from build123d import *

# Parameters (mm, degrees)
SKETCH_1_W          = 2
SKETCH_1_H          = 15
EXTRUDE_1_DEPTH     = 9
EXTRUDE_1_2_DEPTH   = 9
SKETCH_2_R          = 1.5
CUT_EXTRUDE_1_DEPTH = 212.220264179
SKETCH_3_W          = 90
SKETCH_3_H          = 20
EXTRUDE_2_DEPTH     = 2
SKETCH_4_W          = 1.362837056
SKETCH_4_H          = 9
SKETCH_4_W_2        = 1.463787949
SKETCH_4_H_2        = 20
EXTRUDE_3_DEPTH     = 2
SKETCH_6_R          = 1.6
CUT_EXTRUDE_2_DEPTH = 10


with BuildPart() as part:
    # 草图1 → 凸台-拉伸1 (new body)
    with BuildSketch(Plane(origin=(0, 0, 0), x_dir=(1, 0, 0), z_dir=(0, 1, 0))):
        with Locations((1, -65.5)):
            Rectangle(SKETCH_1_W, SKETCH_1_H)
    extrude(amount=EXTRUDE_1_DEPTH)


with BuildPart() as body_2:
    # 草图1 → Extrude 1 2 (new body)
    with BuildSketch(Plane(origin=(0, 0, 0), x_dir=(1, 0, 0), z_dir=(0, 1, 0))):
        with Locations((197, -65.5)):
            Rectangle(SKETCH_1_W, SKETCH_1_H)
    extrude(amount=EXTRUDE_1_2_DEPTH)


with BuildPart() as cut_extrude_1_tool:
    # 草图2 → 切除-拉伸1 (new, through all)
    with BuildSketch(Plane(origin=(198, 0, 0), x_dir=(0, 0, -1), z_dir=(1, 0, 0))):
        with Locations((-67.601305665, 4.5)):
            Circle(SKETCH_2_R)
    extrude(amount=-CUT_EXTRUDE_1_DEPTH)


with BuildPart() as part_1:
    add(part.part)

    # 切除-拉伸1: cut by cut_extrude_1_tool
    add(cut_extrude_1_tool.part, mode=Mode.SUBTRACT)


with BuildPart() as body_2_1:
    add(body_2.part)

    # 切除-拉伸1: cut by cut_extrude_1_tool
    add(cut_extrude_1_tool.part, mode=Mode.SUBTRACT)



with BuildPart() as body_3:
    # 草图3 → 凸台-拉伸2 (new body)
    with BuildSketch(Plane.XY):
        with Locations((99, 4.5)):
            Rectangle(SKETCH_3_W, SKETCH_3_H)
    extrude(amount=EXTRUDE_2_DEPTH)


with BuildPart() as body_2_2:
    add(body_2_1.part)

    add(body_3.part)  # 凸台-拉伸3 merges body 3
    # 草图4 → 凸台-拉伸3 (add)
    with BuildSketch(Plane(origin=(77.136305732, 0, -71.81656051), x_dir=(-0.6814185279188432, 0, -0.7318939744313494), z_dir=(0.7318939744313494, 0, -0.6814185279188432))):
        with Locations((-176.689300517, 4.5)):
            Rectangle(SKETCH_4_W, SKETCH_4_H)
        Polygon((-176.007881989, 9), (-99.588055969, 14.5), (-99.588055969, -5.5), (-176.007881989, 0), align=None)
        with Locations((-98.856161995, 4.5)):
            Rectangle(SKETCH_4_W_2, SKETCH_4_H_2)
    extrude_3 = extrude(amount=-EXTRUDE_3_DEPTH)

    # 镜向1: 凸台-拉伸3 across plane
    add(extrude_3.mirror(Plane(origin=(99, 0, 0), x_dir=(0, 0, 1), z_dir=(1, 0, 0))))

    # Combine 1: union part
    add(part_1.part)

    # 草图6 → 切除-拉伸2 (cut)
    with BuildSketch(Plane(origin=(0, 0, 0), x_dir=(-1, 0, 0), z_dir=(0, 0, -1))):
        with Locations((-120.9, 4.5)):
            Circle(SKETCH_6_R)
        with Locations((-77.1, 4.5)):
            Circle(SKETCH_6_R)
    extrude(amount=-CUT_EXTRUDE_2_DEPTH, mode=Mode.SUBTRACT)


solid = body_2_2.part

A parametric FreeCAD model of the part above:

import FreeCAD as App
import Part
import Sketcher

V = App.Vector

doc = App.newDocument("Part")
params = doc.addObject("Spreadsheet::Sheet", "Params")
for row, (alias, value) in enumerate([
    ("sketch1_width", "2 mm"),
    ("sketch1_height", "15 mm"),
    ("pad1_length", "9 mm"),
    ("sketch2_width", "2 mm"),
    ("sketch2_height", "15 mm"),
    ("pad2_length", "9 mm"),
    ("sketch3_diameter", "3 mm"),
    ("pad3_length", "212.220264 mm"),
    ("sketch4_width", "90 mm"),
    ("sketch4_height", "20 mm"),
    ("pad4_length", "2 mm"),
    ("sketch5_height", "9 mm"),
    ("sketch5_height2", "20 mm"),
    ("pad5_length", "2 mm"),
    ("sketch6_diameter", "3.2 mm"),
    ("pocket1_length", "10 mm"),
], start=1):
    params.set(f"A{row}", alias)
    params.set(f"B{row}", "=" + value)
    params.setAlias(f"B{row}", alias)

body = doc.addObject("PartDesign::Body", "Body")

sketch1 = body.newObject("Sketcher::SketchObject", "Sketch")
sketch1.AttachmentSupport = (doc.getObject("XZ_Plane"), [""])
sketch1.MapMode = "FlatFace"
sketch1.addGeometry([
    Part.LineSegment(V(0, 58, 0), V(0, 73, 0)),
    Part.LineSegment(V(0, 73, 0), V(2, 73, 0)),
    Part.LineSegment(V(2, 73, 0), V(2, 58, 0)),
    Part.LineSegment(V(2, 58, 0), V(0, 58, 0)),
], False)
sketch1.addConstraint([
    Sketcher.Constraint("Coincident", 0, 2, 1, 1),
    Sketcher.Constraint("Coincident", 1, 2, 2, 1),
    Sketcher.Constraint("Coincident", 2, 2, 3, 1),
    Sketcher.Constraint("Coincident", 3, 2, 0, 1),
    Sketcher.Constraint("Vertical", 0),
    Sketcher.Constraint("Horizontal", 1),
    Sketcher.Constraint("Vertical", 2),
    Sketcher.Constraint("Horizontal", 3),
    Sketcher.Constraint("PointOnObject", 0, 2, -2),
    Sketcher.Constraint("DistanceX", 1, 1, 1, 2, 2.0),
    Sketcher.Constraint("DistanceY", 0, 1, 0, 2, 15.0),
    Sketcher.Constraint("DistanceY", -1, 1, 0, 2, 73.0),
])
sketch1.setExpression("Constraints[9]", "Params.sketch1_width")
sketch1.setExpression("Constraints[10]", "Params.sketch1_height")
pad1 = body.newObject("PartDesign::Pad", "Pad")
pad1.Profile = sketch1
pad1.setExpression("Length", "Params.pad1_length")
pad1.Reversed = True
body2 = doc.addObject("PartDesign::Body", "Body001")

sketch2 = body2.newObject("Sketcher::SketchObject", "Sketch001")
sketch2.AttachmentSupport = (doc.getObject("XZ_Plane001"), [""])
sketch2.MapMode = "FlatFace"
sketch2.addGeometry([
    Part.LineSegment(V(196, 58, 0), V(196, 73, 0)),
    Part.LineSegment(V(196, 73, 0), V(198, 73, 0)),
    Part.LineSegment(V(198, 73, 0), V(198, 58, 0)),
    Part.LineSegment(V(198, 58, 0), V(196, 58, 0)),
], False)
sketch2.addConstraint([
    Sketcher.Constraint("Coincident", 0, 2, 1, 1),
    Sketcher.Constraint("Coincident", 1, 2, 2, 1),
    Sketcher.Constraint("Coincident", 2, 2, 3, 1),
    Sketcher.Constraint("Coincident", 3, 2, 0, 1),
    Sketcher.Constraint("Vertical", 0),
    Sketcher.Constraint("Horizontal", 1),
    Sketcher.Constraint("Vertical", 2),
    Sketcher.Constraint("Horizontal", 3),
    Sketcher.Constraint("DistanceX", 1, 1, 1, 2, 2.0),
    Sketcher.Constraint("DistanceY", 0, 1, 0, 2, 15.0),
    Sketcher.Constraint("DistanceX", -1, 1, 0, 2, 196.0),
    Sketcher.Constraint("DistanceY", -1, 1, 0, 2, 73.0),
])
sketch2.setExpression("Constraints[8]", "Params.sketch2_width")
sketch2.setExpression("Constraints[9]", "Params.sketch2_height")
pad2 = body2.newObject("PartDesign::Pad", "Pad001")
pad2.Profile = sketch2
pad2.setExpression("Length", "Params.pad2_length")
pad2.Reversed = True
body3 = doc.addObject("PartDesign::Body", "Body002")

sketch3 = body3.newObject("Sketcher::SketchObject", "Sketch002")
sketch3.AttachmentSupport = (doc.getObject("YZ_Plane002"), [""])
sketch3.MapMode = "FlatFace"
sketch3.AttachmentOffset = App.Placement(V(0, 0, 198), App.Rotation())
sketch3.addGeometry(Part.Circle(V(4.5, 67.6, 0), V(0, 0, 1), 1.5), False)
sketch3.addConstraint([
    Sketcher.Constraint("Diameter", 0, 3.0),
    Sketcher.Constraint("DistanceX", -1, 1, 0, 3, 4.5),
    Sketcher.Constraint("DistanceY", -1, 1, 0, 3, 67.601306),
])
sketch3.setExpression("Constraints[0]", "Params.sketch3_diameter")
pad3 = body3.newObject("PartDesign::Pad", "Pad002")
pad3.Profile = sketch3
pad3.setExpression("Length", "Params.pad3_length")
pad3.Reversed = True
doc.recompute()

body4 = doc.addObject("PartDesign::Body", "Body003")
body4.BaseFeature = body3
boolean = body.newObject("PartDesign::Boolean", "Boolean")
boolean.Type = "Cut"
boolean.addObjects([body4])
doc.recompute()

boolean2 = body2.newObject("PartDesign::Boolean", "Boolean001")
boolean2.Type = "Cut"
boolean2.addObjects([body3])
body5 = doc.addObject("PartDesign::Body", "Body004")

sketch4 = body5.newObject("Sketcher::SketchObject", "Sketch003")
sketch4.AttachmentSupport = (doc.getObject("XY_Plane004"), [""])
sketch4.MapMode = "FlatFace"
sketch4.addGeometry([
    Part.LineSegment(V(54, 14, 0), V(54, -6, 0)),
    Part.LineSegment(V(54, -6, 0), V(144, -6, 0)),
    Part.LineSegment(V(144, -6, 0), V(144, 14, 0)),
    Part.LineSegment(V(144, 14, 0), V(54, 14, 0)),
], False)
sketch4.addConstraint([
    Sketcher.Constraint("Coincident", 0, 2, 1, 1),
    Sketcher.Constraint("Coincident", 1, 2, 2, 1),
    Sketcher.Constraint("Coincident", 2, 2, 3, 1),
    Sketcher.Constraint("Coincident", 3, 2, 0, 1),
    Sketcher.Constraint("Vertical", 0),
    Sketcher.Constraint("Horizontal", 1),
    Sketcher.Constraint("Vertical", 2),
    Sketcher.Constraint("Horizontal", 3),
    Sketcher.Constraint("DistanceX", 1, 1, 1, 2, 90.0),
    Sketcher.Constraint("DistanceY", 0, 2, 0, 1, 20.0),
    Sketcher.Constraint("DistanceX", -1, 1, 0, 2, 54.0),
    Sketcher.Constraint("DistanceY", 0, 2, -1, 1, 5.5),
])
sketch4.setExpression("Constraints[8]", "Params.sketch4_width")
sketch4.setExpression("Constraints[9]", "Params.sketch4_height")
pad4 = body5.newObject("PartDesign::Pad", "Pad003")
pad4.Profile = sketch4
pad4.setExpression("Length", "Params.pad4_length")
body2.AllowCompound = True
doc.recompute()

boolean3 = body2.newObject("PartDesign::Boolean", "Boolean002")
boolean3.Type = "Fuse"
boolean3.addObjects([body5])

sketch5 = body2.newObject("Sketcher::SketchObject", "Sketch004")
sketch5.Placement = App.Placement(V(77.136306, 0, -71.816561), App.Rotation(V(-0.681418528, 0, -0.731893974), V(0, 0.999999999, 0), V(0.731893974, 0, -0.681418528), "ZXY"))
sketch5.addGeometry([
    Part.LineSegment(V(-177.4, 9, 0), V(-177.4, 0, 0)),
    Part.LineSegment(V(-177.4, 0, 0), V(-176, 0, 0)),
    Part.LineSegment(V(-176, 0, 0), V(-99.6, -5.5, 0)),
    Part.LineSegment(V(-99.6, -5.5, 0), V(-98.1, -5.5, 0)),
    Part.LineSegment(V(-98.1, -5.5, 0), V(-98.1, 14.5, 0)),
    Part.LineSegment(V(-98.1, 14.5, 0), V(-99.6, 14.5, 0)),
    Part.LineSegment(V(-99.6, 14.5, 0), V(-176, 9, 0)),
    Part.LineSegment(V(-176, 9, 0), V(-177.4, 9, 0)),
], False)
sketch5.addConstraint([
    Sketcher.Constraint("Coincident", 0, 2, 1, 1),
    Sketcher.Constraint("Coincident", 1, 2, 2, 1),
    Sketcher.Constraint("Coincident", 2, 2, 3, 1),
    Sketcher.Constraint("Coincident", 3, 2, 4, 1),
    Sketcher.Constraint("Coincident", 4, 2, 5, 1),
    Sketcher.Constraint("Coincident", 5, 2, 6, 1),
    Sketcher.Constraint("Coincident", 6, 2, 7, 1),
    Sketcher.Constraint("Coincident", 7, 2, 0, 1),
    Sketcher.Constraint("Vertical", 0),
    Sketcher.Constraint("Horizontal", 1),
    Sketcher.Constraint("Horizontal", 3),
    Sketcher.Constraint("Vertical", 4),
    Sketcher.Constraint("Horizontal", 5),
    Sketcher.Constraint("Horizontal", 7),
    Sketcher.Constraint("PointOnObject", 0, 2, -1),
    Sketcher.Constraint("Vertical", 2, 2, 5, 2),
    Sketcher.Constraint("Vertical", 1, 2, 6, 2),
    Sketcher.Constraint("Equal", 2, 6),
    Sketcher.Constraint("DistanceY", 0, 2, 0, 1, 9.0),
    Sketcher.Constraint("DistanceY", 4, 1, 4, 2, 20.0),
    Sketcher.Constraint("Distance", 2, 76.61749),
    Sketcher.Constraint("DistanceX", 1, 1, 1, 2, 1.362837),
    Sketcher.Constraint("DistanceX", 3, 1, 3, 2, 1.463788),
    Sketcher.Constraint("DistanceX", 0, 2, -1, 1, 177.370719),
])
sketch5.setExpression("Constraints[18]", "Params.sketch5_height")
sketch5.setExpression("Constraints[19]", "Params.sketch5_height2")
pad5 = body2.newObject("PartDesign::Pad", "Pad004")
pad5.Profile = sketch5
pad5.setExpression("Length", "Params.pad5_length")
pad5.Reversed = True
doc.recompute()

datumplane = body2.newObject("PartDesign::Plane", "DatumPlane")
datumplane.AttachmentSupport = (doc.getObject("YZ_Plane001"), [""])
datumplane.MapMode = "FlatFace"
datumplane.AttachmentOffset = App.Placement(V(0, 0, 99), App.Rotation())
mirrored = body2.newObject("PartDesign::Mirrored", "Mirrored")
mirrored.Originals = [pad5]
mirrored.MirrorPlane = (datumplane, [""])
body2.Tip = mirrored
doc.recompute()

boolean4 = body2.newObject("PartDesign::Boolean", "Boolean003")
boolean4.Type = "Fuse"
boolean4.addObjects([body])

sketch6 = body2.newObject("Sketcher::SketchObject", "Sketch005")
sketch6.AttachmentSupport = (doc.getObject("XY_Plane001"), [""])
sketch6.MapMode = "FlatFace"
sketch6.addGeometry([
    Part.Circle(V(120.9, 4.5, 0), V(0, 0, 1), 1.6),
    Part.Circle(V(77.1, 4.5, 0), V(0, 0, 1), 1.6),
], False)
sketch6.addConstraint([
    Sketcher.Constraint("Equal", 0, 1),
    Sketcher.Constraint("Horizontal", 0, 3, 1, 3),
    Sketcher.Constraint("Diameter", 0, 3.2),
    Sketcher.Constraint("DistanceX", -1, 1, 0, 3, 120.9),
    Sketcher.Constraint("DistanceY", -1, 1, 0, 3, 4.5),
    Sketcher.Constraint("DistanceX", -1, 1, 1, 3, 77.1),
])
sketch6.setExpression("Constraints[2]", "Params.sketch6_diameter")
pocket1 = body2.newObject("PartDesign::Pocket", "Pocket")
pocket1.Profile = sketch6
pocket1.setExpression("Length", "Params.pocket1_length")
pocket1.Reversed = True

doc.recompute()
